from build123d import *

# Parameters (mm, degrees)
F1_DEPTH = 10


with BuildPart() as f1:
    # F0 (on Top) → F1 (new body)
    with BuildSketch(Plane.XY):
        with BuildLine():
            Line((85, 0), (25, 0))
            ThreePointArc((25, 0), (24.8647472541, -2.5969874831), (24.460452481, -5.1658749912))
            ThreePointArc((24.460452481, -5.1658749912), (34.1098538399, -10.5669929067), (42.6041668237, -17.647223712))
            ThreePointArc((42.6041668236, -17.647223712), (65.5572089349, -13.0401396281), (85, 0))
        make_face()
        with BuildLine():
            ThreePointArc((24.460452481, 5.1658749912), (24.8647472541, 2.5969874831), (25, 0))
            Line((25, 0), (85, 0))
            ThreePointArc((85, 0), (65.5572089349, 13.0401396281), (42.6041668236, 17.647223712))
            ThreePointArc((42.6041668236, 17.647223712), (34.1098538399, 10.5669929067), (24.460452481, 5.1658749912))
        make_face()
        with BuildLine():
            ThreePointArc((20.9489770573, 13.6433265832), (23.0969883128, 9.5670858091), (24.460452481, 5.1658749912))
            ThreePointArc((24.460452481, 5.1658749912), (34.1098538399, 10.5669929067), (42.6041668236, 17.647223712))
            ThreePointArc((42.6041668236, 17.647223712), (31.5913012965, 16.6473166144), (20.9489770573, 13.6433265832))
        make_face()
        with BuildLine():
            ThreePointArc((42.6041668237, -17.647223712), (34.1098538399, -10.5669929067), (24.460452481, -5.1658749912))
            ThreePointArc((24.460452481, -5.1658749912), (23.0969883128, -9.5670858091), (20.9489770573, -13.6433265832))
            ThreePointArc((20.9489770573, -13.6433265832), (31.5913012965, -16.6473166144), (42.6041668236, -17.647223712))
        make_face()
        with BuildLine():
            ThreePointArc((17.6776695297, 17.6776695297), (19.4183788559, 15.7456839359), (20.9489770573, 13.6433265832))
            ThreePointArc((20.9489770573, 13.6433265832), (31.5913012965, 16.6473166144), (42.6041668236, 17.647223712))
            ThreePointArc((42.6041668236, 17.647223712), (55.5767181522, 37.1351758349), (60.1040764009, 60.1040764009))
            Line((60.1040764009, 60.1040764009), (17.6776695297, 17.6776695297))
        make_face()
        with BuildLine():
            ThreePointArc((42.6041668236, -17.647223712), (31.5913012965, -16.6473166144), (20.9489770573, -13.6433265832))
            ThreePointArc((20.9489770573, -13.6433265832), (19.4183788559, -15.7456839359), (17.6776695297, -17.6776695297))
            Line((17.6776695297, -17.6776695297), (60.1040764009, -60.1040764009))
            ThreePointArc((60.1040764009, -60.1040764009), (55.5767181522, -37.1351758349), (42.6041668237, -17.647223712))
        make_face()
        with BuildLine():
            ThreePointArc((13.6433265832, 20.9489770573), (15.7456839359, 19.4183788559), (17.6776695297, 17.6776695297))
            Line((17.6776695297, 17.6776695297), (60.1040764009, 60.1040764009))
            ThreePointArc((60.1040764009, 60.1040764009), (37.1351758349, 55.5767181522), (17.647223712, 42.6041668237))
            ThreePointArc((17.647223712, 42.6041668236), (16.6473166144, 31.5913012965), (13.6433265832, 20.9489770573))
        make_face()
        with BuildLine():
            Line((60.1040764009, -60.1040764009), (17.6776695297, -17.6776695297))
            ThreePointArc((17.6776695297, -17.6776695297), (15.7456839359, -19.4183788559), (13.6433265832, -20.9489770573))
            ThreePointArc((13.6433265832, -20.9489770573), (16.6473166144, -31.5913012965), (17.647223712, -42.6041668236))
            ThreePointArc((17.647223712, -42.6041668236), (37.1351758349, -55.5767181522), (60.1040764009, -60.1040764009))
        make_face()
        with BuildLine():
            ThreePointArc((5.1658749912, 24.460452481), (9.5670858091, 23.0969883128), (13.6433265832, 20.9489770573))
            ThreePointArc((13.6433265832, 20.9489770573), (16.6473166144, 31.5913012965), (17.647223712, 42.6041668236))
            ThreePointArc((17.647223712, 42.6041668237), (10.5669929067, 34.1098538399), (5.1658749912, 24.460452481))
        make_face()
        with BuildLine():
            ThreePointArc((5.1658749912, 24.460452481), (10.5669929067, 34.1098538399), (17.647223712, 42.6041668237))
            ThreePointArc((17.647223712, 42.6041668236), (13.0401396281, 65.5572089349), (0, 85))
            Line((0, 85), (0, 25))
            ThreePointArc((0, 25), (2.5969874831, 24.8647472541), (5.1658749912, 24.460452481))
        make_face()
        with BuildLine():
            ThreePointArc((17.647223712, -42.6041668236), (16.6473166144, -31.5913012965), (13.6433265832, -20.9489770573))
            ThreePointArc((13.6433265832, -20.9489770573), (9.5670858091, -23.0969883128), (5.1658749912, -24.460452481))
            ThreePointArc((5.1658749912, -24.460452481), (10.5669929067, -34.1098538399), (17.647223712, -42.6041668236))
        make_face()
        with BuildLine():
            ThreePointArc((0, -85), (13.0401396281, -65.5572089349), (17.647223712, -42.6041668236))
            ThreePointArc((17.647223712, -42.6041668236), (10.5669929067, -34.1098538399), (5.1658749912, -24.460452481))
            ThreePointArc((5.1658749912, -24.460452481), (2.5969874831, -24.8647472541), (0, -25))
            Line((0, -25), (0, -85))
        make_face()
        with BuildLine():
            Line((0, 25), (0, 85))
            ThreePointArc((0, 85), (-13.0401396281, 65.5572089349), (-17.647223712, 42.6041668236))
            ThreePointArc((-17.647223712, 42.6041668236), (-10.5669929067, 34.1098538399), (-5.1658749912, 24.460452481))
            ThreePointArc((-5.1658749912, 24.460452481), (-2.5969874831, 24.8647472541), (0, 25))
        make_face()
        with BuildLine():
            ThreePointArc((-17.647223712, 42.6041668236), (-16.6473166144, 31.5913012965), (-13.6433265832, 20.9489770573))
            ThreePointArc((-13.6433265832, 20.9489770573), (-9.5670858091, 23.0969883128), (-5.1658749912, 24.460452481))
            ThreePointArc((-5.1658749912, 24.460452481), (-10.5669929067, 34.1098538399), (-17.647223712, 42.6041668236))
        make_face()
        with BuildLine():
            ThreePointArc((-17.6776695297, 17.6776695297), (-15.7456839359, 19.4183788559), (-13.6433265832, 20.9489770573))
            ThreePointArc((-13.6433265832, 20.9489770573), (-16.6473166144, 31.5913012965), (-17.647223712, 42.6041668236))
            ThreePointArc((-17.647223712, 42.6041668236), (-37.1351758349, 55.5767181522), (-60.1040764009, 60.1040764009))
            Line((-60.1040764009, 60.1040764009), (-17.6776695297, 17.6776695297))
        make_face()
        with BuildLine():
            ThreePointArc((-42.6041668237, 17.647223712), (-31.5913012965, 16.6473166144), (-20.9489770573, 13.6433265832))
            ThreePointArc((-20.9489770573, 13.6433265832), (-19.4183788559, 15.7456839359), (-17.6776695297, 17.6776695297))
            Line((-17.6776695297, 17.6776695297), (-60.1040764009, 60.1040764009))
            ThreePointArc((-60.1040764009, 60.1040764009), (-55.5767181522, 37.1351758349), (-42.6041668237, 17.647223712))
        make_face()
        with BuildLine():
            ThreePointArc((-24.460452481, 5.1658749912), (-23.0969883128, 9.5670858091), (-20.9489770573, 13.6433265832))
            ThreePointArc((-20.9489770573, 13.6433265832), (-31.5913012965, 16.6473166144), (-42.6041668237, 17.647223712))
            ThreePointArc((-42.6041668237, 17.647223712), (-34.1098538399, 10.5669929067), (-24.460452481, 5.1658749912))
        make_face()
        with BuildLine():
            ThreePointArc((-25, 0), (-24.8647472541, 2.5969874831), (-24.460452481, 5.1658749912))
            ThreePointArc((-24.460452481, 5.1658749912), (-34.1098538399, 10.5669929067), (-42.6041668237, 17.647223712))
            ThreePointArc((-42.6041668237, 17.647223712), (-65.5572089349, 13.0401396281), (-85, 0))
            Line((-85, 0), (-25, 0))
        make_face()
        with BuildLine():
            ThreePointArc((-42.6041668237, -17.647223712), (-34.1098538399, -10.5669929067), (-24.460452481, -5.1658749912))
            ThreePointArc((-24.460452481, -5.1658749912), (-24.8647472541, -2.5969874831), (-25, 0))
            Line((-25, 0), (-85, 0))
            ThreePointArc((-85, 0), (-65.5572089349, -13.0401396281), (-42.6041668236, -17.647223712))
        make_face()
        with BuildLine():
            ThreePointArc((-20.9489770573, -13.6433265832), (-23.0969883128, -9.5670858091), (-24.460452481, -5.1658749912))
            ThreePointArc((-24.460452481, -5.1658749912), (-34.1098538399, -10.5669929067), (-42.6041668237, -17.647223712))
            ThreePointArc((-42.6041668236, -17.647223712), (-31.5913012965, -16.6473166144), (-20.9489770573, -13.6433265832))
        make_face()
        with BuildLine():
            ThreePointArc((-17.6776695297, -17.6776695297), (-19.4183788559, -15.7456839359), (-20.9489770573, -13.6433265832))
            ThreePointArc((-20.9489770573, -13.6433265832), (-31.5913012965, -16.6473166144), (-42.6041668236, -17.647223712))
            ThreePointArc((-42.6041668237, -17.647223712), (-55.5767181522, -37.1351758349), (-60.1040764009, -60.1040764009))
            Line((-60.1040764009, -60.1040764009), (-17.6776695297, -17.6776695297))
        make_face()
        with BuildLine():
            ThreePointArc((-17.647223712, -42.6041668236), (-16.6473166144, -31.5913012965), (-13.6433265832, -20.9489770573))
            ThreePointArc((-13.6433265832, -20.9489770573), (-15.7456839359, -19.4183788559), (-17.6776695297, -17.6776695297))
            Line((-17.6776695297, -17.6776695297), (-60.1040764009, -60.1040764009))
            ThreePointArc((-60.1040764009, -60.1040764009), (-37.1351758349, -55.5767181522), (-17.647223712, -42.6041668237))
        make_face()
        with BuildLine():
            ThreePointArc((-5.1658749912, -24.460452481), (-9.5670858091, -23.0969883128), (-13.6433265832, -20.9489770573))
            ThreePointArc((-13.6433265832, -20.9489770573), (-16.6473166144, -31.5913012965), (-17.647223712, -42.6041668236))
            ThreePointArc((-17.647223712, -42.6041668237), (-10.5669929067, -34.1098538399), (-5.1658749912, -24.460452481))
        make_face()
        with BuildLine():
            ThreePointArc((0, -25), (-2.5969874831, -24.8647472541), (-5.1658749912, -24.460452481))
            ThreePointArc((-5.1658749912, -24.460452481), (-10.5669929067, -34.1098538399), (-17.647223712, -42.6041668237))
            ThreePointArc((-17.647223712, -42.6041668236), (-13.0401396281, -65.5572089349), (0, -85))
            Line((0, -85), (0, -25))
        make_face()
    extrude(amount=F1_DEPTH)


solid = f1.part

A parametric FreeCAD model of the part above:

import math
import FreeCAD as App
import Part
import Sketcher
Q = App.Units.Quantity

doc = App.newDocument("Part")
body = doc.addObject("PartDesign::Body", "Body")

sketch1 = body.newObject("Sketcher::SketchObject", "Sketch")
sketch1.AttachmentSupport = (doc.getObject("XY_Plane"), [""])
sketch1.MapMode = "FlatFace"
sketch1.addGeometry([
    Part.ArcOfCircle(Part.Circle(App.Vector(-42.352686, -42.5, 0), App.Vector(0, 0, 1), 60), math.radians(-45.099472), math.radians(-0.099472)),
    Part.ArcOfCircle(Part.Circle(App.Vector(59.99991, -0.104167, 0), App.Vector(0, 0, 1), 60), math.radians(-134.900528), math.radians(-89.900528)),
    Part.ArcOfCircle(Part.Circle(App.Vector(0.104167, -59.99991, 0), App.Vector(0, 0, 1), 60), math.radians(-0.099472), math.radians(44.900528)),
    Part.ArcOfCircle(Part.Circle(App.Vector(42.5, 42.352686, 0), App.Vector(0, 0, 1), 60), math.radians(-89.900528), math.radians(-44.900528)),
    Part.ArcOfCircle(Part.Circle(App.Vector(42.5, -42.352686, 0), App.Vector(0, 0, 1), 60), math.radians(44.900528), math.radians(89.900528)),
    Part.ArcOfCircle(Part.Circle(App.Vector(0.104167, 59.99991, 0), App.Vector(0, 0, 1), 60), math.radians(-44.900528), math.radians(0.099472)),
    Part.ArcOfCircle(Part.Circle(App.Vector(59.99991, 0.104167, 0), App.Vector(0, 0, 1), 60), math.radians(89.900528), math.radians(134.900528)),
    Part.ArcOfCircle(Part.Circle(App.Vector(-42.352686, 42.5, 0), App.Vector(0, 0, 1), 60), math.radians(0.099472), math.radians(45.099472)),
    Part.ArcOfCircle(Part.Circle(App.Vector(42.352686, 42.5, 0), App.Vector(0, 0, 1), 60), math.radians(134.900528), math.radians(179.900528)),
    Part.ArcOfCircle(Part.Circle(App.Vector(-59.99991, 0.104167, 0), App.Vector(0, 0, 1), 60), math.radians(45.099472), math.radians(90.099472)),
    Part.ArcOfCircle(Part.Circle(App.Vector(-0.104167, 59.99991, 0), App.Vector(0, 0, 1), 60), math.radians(179.900528), math.radians(224.900528)),
    Part.ArcOfCircle(Part.Circle(App.Vector(-42.5, -42.352686, 0), App.Vector(0, 0, 1), 60), math.radians(90.099472), math.radians(135.099472)),
    Part.ArcOfCircle(Part.Circle(App.Vector(-42.5, 42.352686, 0), App.Vector(0, 0, 1), 60), math.radians(-135.099472), math.radians(-90.099472)),
    Part.ArcOfCircle(Part.Circle(App.Vector(-0.104167, -59.99991, 0), App.Vector(0, 0, 1), 60), math.radians(135.099472), math.radians(180.099472)),
    Part.ArcOfCircle(Part.Circle(App.Vector(-59.99991, -0.104167, 0), App.Vector(0, 0, 1), 60), math.radians(-90.099472), math.radians(-45.099472)),
    Part.ArcOfCircle(Part.Circle(App.Vector(42.352686, -42.5, 0), App.Vector(0, 0, 1), 60), math.radians(-179.900528), math.radians(-134.900528)),
    Part.ArcOfCircle(Part.Circle(App.Vector(0, 0, 0), App.Vector(0, 0, 1), 25), math.radians(-11.925227), math.radians(0)),
    Part.ArcOfCircle(Part.Circle(App.Vector(0, 0, 0), App.Vector(0, 0, 1), 25), math.radians(-33.074773), math.radians(-11.925227)),
    Part.ArcOfCircle(Part.Circle(App.Vector(0, 0, 0), App.Vector(0, 0, 1), 25), math.radians(-45), math.radians(-33.074773)),
    Part.ArcOfCircle(Part.Circle(App.Vector(0, 0, 0), App.Vector(0, 0, 1), 25), math.radians(-56.925227), math.radians(-45)),
    Part.ArcOfCircle(Part.Circle(App.Vector(0, 0, 0), App.Vector(0, 0, 1), 25), math.radians(-78.074773), math.radians(-56.925227)),
    Part.ArcOfCircle(Part.Circle(App.Vector(0, 0, 0), App.Vector(0, 0, 1), 25), math.radians(-90), math.radians(-78.074773)),
    Part.ArcOfCircle(Part.Circle(App.Vector(0, 0, 0), App.Vector(0, 0, 1), 25), math.radians(-101.925227), math.radians(-90)),
    Part.ArcOfCircle(Part.Circle(App.Vector(0, 0, 0), App.Vector(0, 0, 1), 25), math.radians(-123.074773), math.radians(-101.925227)),
    Part.ArcOfCircle(Part.Circle(App.Vector(0, 0, 0), App.Vector(0, 0, 1), 25), math.radians(-135), math.radians(-123.074773)),
    Part.ArcOfCircle(Part.Circle(App.Vector(0, 0, 0), App.Vector(0, 0, 1), 25), math.radians(-146.925227), math.radians(-135)),
    Part.ArcOfCircle(Part.Circle(App.Vector(0, 0, 0), App.Vector(0, 0, 1), 25), math.radians(-168.074773), math.radians(-146.925227)),
    Part.ArcOfCircle(Part.Circle(App.Vector(0, 0, 0), App.Vector(0, 0, 1), 25), math.radians(-180), math.radians(-168.074773)),
    Part.ArcOfCircle(Part.Circle(App.Vector(0, 0, 0), App.Vector(0, 0, 1), 25), math.radians(168.074773), math.radians(180)),
    Part.ArcOfCircle(Part.Circle(App.Vector(0, 0, 0), App.Vector(0, 0, 1), 25), math.radians(146.925227), math.radians(168.074773)),
    Part.ArcOfCircle(Part.Circle(App.Vector(0, 0, 0), App.Vector(0, 0, 1), 25), math.radians(135), math.radians(146.925227)),
    Part.ArcOfCircle(Part.Circle(App.Vector(0, 0, 0), App.Vector(0, 0, 1), 25), math.radians(123.074773), math.radians(135)),
    Part.ArcOfCircle(Part.Circle(App.Vector(0, 0, 0), App.Vector(0, 0, 1), 25), math.radians(101.925227), math.radians(123.074773)),
    Part.ArcOfCircle(Part.Circle(App.Vector(0, 0, 0), App.Vector(0, 0, 1), 25), math.radians(90), math.radians(101.925227)),
    Part.ArcOfCircle(Part.Circle(App.Vector(0, 0, 0), App.Vector(0, 0, 1), 25), math.radians(78.074773), math.radians(90)),
    Part.ArcOfCircle(Part.Circle(App.Vector(0, 0, 0), App.Vector(0, 0, 1), 25), math.radians(56.925227), math.radians(78.074773)),
    Part.ArcOfCircle(Part.Circle(App.Vector(0, 0, 0), App.Vector(0, 0, 1), 25), math.radians(45), math.radians(56.925227)),
    Part.ArcOfCircle(Part.Circle(App.Vector(0, 0, 0), App.Vector(0, 0, 1), 25), math.radians(33.074773), math.radians(45)),
    Part.ArcOfCircle(Part.Circle(App.Vector(0, 0, 0), App.Vector(0, 0, 1), 25), math.radians(11.925227), math.radians(33.074773)),
    Part.ArcOfCircle(Part.Circle(App.Vector(0, 0, 0), App.Vector(0, 0, 1), 25), math.radians(0), math.radians(11.925227)),
], False)
sketch1.addConstraint([
    Sketcher.Constraint("Coincident", 0, 2, 1, 1),
    Sketcher.Constraint("Coincident", 1, 2, 2, 1),
    Sketcher.Constraint("Coincident", 2, 2, 3, 1),
    Sketcher.Constraint("Coincident", 3, 2, 4, 1),
    Sketcher.Constraint("Coincident", 4, 2, 5, 1),
    Sketcher.Constraint("Coincident", 5, 2, 6, 1),
    Sketcher.Constraint("Coincident", 6, 2, 7, 1),
    Sketcher.Constraint("Coincident", 7, 2, 8, 1),
    Sketcher.Constraint("Coincident", 8, 2, 9, 1),
    Sketcher.Constraint("Coincident", 9, 2, 10, 1),
    Sketcher.Constraint("Coincident", 10, 2, 11, 1),
    Sketcher.Constraint("Coincident", 11, 2, 12, 1),
    Sketcher.Constraint("Coincident", 12, 2, 13, 1),
    Sketcher.Constraint("Coincident", 13, 2, 14, 1),
    Sketcher.Constraint("Coincident", 14, 2, 15, 1),
    Sketcher.Constraint("Coincident", 15, 2, 0, 1),
    Sketcher.Constraint("Tangent", 16, 1, 17, 2),
    Sketcher.Constraint("Tangent", 17, 1, 18, 2),
    Sketcher.Constraint("Tangent", 18, 1, 19, 2),
    Sketcher.Constraint("Tangent", 19, 1, 20, 2),
    Sketcher.Constraint("Tangent", 20, 1, 21, 2),
    Sketcher.Constraint("Tangent", 21, 1, 22, 2),
    Sketcher.Constraint("Tangent", 22, 1, 23, 2),
    Sketcher.Constraint("Tangent", 23, 1, 24, 2),
    Sketcher.Constraint("Tangent", 24, 1, 25, 2),
    Sketcher.Constraint("Tangent", 25, 1, 26, 2),
    Sketcher.Constraint("Tangent", 26, 1, 27, 2),
    Sketcher.Constraint("Tangent", 27, 1, 28, 2),
    Sketcher.Constraint("Tangent", 28, 1, 29, 2),
    Sketcher.Constraint("Tangent", 29, 1, 30, 2),
    Sketcher.Constraint("Tangent", 30, 1, 31, 2),
    Sketcher.Constraint("Tangent", 31, 1, 32, 2),
    Sketcher.Constraint("Tangent", 32, 1, 33, 2),
    Sketcher.Constraint("Tangent", 33, 1, 34, 2),
    Sketcher.Constraint("Tangent", 34, 1, 35, 2),
    Sketcher.Constraint("Tangent", 35, 1, 36, 2),
    Sketcher.Constraint("Tangent", 36, 1, 37, 2),
    Sketcher.Constraint("Tangent", 37, 1, 38, 2),
    Sketcher.Constraint("Tangent", 38, 1, 39, 2),
    Sketcher.Constraint("Tangent", 39, 1, 16, 2),
    Sketcher.Constraint("Coincident", 16, 3, -1, 1),
    Sketcher.Constraint("Coincident", 18, 3, -1, 1),
    Sketcher.Constraint("Coincident", 20, 3, -1, 1),
    Sketcher.Constraint("Coincident", 22, 3, -1, 1),
    Sketcher.Constraint("Coincident", 24, 3, -1, 1),
    Sketcher.Constraint("Coincident", 26, 3, -1, 1),
    Sketcher.Constraint("Coincident", 28, 3, -1, 1),
    Sketcher.Constraint("Coincident", 30, 3, -1, 1),
    Sketcher.Constraint("Coincident", 32, 3, -1, 1),
    Sketcher.Constraint("Coincident", 34, 3, -1, 1),
    Sketcher.Constraint("Coincident", 36, 3, -1, 1),
    Sketcher.Constraint("Equal", 0, 1),
    Sketcher.Constraint("Equal", 1, 2),
    Sketcher.Constraint("Equal", 2, 3),
    Sketcher.Constraint("Equal", 3, 4),
    Sketcher.Constraint("Equal", 4, 5),
    Sketcher.Constraint("Equal", 5, 6),
    Sketcher.Constraint("Equal", 6, 7),
    Sketcher.Constraint("Equal", 7, 8),
    Sketcher.Constraint("Equal", 8, 9),
    Sketcher.Constraint("Equal", 9, 10),
    Sketcher.Constraint("Equal", 10, 11),
    Sketcher.Constraint("Equal", 11, 12),
    Sketcher.Constraint("Equal", 12, 13),
    Sketcher.Constraint("Equal", 13, 14),
    Sketcher.Constraint("Equal", 14, 15),
    Sketcher.Constraint("Equal", 36, 37),
    Sketcher.Constraint("Symmetric", 0, 3, 8, 3, -1, 1),
    Sketcher.Constraint("Symmetric", 1, 3, 9, 3, -1, 1),
    Sketcher.Constraint("Symmetric", 2, 3, 10, 3, -1, 1),
    Sketcher.Constraint("Symmetric", 3, 3, 11, 3, -1, 1),
    Sketcher.Constraint("Symmetric", 4, 3, 12, 3, -1, 1),
    Sketcher.Constraint("Symmetric", 5, 3, 13, 3, -1, 1),
    Sketcher.Constraint("Symmetric", 6, 3, 14, 3, -1, 1),
    Sketcher.Constraint("Symmetric", 7, 3, 15, 3, -1, 1),
    Sketcher.Constraint("Symmetric", 7, 3, 8, 3, -2),
    Sketcher.Constraint("Symmetric", 6, 3, 9, 3, -2),
    Sketcher.Constraint("Symmetric", 5, 3, 10, 3, -2),
    Sketcher.Constraint("Symmetric", 4, 3, 11, 3, -2),
    Sketcher.Constraint("PointOnObject", 21, 1, -2),
    Sketcher.Constraint("PointOnObject", 27, 1, -1),
    Sketcher.Constraint("PointOnObject", 33, 1, -2),
    Sketcher.Constraint("PointOnObject", 39, 1, -1),
    Sketcher.Constraint("Horizontal", 20, 1, 22, 1),
    Sketcher.Constraint("Horizontal", 19, 1, 23, 1),
    Sketcher.Constraint("Horizontal", 18, 1, 24, 1),
    Sketcher.Constraint("Horizontal", 17, 1, 25, 1),
    Sketcher.Constraint("Horizontal", 16, 1, 26, 1),
    Sketcher.Constraint("Horizontal", 32, 1, 34, 1),
    Sketcher.Constraint("Horizontal", 31, 1, 35, 1),
    Sketcher.Constraint("Horizontal", 30, 1, 36, 1),
    Sketcher.Constraint("Horizontal", 29, 1, 37, 1),
    Sketcher.Constraint("Horizontal", 28, 1, 38, 1),
    Sketcher.Constraint("Vertical", 26, 1, 28, 1),
    Sketcher.Constraint("Vertical", 25, 1, 29, 1),
    Sketcher.Constraint("Vertical", 24, 1, 30, 1),
    Sketcher.Constraint("Vertical", 23, 1, 31, 1),
    Sketcher.Constraint("Vertical", 22, 1, 32, 1),
    Sketcher.Constraint("Radius", 0, Q("60 mm")),
    Sketcher.Constraint("Radius", 16, Q("25 mm")),
    Sketcher.Constraint("DistanceX", -1, 1, 3, 2, Q("85 mm")),
    Sketcher.Constraint("DistanceY", -1, 1, 7, 2, Q("85 mm")),
    Sketcher.Constraint("DistanceY", 0, 3, -1, 1, Q("42.5 mm")),
    Sketcher.Constraint("DistanceX", -1, 1, 3, 3, Q("42.5 mm")),
    Sketcher.Constraint("DistanceX", -1, 1, 1, 3, Q("59.99991 mm")),
    Sketcher.Constraint("DistanceY", 2, 3, -1, 1, Q("59.99991 mm")),
    Sketcher.Constraint("DistanceX", -1, 1, 18, 1, Q("17.67767 mm")),
    Sketcher.Constraint("DistanceY", 1, 3, -1, 1, Q("0.104167 mm")),
    Sketcher.Constraint("DistanceX", -1, 1, 2, 3, Q("0.104167 mm")),
    Sketcher.Constraint("DistanceX", -1, 1, 16, 1, Q("24.460452 mm")),
    Sketcher.Constraint("DistanceX", -1, 1, 17, 1, Q("20.948977 mm")),
    Sketcher.Constraint("DistanceX", -1, 1, 19, 1, Q("13.643327 mm")),
    Sketcher.Constraint("DistanceX", -1, 1, 20, 1, Q("5.165875 mm")),
])
pad1 = body.newObject("PartDesign::Pad", "Pad")
pad1.Profile = sketch1
pad1.Length = 10

doc.recompute()
